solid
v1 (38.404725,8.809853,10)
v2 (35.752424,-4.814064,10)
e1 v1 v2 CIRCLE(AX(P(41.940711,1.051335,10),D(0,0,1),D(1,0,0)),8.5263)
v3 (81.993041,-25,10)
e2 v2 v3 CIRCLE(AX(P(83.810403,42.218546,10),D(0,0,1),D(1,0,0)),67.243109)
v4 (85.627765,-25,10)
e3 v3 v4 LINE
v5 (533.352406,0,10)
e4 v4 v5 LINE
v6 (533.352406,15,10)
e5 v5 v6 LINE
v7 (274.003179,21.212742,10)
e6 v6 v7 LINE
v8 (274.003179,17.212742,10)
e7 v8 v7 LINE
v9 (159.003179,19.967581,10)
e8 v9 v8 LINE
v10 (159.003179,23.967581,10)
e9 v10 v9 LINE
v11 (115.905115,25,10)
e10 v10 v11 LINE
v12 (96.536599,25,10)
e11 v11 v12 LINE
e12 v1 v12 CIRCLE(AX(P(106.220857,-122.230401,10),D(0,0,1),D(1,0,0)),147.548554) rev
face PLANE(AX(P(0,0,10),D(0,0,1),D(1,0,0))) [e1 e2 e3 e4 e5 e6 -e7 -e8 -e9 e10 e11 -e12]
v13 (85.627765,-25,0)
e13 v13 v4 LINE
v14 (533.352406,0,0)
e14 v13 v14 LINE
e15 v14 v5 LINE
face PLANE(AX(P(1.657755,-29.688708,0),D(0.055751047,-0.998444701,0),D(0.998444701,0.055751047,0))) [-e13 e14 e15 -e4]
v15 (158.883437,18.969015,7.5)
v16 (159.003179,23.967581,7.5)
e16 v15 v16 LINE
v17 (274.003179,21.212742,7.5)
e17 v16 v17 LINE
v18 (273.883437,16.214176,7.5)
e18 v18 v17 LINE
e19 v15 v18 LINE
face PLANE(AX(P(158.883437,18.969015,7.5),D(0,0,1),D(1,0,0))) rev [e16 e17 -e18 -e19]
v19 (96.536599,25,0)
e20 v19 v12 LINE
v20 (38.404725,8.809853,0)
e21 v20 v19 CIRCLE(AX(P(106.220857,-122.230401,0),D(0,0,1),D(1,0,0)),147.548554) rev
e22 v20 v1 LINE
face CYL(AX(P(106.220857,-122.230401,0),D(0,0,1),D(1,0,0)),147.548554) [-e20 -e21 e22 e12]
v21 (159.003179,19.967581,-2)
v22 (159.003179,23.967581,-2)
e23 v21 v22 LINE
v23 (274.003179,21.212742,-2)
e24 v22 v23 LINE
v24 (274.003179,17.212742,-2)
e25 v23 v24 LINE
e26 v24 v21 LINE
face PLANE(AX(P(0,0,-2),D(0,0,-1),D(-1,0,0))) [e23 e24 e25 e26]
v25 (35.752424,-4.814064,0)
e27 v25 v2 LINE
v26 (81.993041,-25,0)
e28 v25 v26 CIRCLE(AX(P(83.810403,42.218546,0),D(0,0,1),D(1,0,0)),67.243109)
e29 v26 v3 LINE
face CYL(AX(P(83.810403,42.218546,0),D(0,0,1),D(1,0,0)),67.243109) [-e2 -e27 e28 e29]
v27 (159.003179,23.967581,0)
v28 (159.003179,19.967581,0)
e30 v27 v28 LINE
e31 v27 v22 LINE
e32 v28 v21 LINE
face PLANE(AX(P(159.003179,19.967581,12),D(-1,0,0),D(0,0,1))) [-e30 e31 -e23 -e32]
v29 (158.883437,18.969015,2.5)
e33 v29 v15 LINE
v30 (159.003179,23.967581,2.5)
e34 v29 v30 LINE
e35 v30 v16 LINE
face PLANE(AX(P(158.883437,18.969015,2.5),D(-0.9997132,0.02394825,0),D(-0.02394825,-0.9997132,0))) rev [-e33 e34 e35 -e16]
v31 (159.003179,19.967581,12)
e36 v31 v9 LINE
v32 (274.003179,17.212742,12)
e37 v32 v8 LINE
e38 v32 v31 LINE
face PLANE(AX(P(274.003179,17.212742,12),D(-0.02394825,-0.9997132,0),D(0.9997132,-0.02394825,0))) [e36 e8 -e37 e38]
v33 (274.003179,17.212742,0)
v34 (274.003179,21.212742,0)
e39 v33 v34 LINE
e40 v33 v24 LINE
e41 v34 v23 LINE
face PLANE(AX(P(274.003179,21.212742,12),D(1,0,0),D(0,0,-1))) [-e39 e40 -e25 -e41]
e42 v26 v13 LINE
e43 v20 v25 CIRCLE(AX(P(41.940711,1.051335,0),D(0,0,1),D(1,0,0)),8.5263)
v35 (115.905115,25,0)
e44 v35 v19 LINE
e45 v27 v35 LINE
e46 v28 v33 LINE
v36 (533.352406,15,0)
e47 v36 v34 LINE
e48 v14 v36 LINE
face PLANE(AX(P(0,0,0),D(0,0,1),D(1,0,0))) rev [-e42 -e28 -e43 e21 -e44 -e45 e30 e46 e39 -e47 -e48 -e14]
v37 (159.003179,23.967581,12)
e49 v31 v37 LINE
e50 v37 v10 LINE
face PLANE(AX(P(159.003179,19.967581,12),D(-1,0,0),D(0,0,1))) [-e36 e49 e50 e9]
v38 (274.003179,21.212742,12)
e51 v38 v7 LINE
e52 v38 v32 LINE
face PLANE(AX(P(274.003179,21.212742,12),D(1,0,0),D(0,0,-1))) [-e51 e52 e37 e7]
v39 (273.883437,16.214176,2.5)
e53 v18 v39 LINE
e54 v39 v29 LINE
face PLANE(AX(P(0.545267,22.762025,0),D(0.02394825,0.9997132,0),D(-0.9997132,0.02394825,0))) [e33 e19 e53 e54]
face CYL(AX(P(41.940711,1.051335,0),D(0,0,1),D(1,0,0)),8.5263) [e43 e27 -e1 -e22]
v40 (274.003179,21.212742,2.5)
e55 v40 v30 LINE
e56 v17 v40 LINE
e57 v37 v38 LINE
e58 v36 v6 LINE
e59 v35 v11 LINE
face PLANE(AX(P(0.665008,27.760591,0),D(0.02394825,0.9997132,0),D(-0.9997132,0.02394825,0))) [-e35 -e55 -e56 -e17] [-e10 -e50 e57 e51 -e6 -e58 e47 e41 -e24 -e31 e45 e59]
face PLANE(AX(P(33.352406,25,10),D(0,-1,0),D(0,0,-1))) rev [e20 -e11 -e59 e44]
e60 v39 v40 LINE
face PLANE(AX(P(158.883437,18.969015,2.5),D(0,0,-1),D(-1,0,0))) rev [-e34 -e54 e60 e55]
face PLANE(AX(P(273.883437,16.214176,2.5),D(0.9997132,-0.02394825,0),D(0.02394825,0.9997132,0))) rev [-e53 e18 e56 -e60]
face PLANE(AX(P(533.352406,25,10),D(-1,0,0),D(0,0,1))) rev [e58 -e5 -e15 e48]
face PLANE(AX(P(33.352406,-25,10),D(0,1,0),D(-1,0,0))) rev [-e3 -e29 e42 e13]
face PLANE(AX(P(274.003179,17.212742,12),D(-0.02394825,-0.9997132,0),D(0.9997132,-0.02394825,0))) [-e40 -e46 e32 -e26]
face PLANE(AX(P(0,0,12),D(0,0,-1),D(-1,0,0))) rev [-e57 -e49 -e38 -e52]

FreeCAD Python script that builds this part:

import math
import FreeCAD as App
import Part
import Sketcher

V = App.Vector
Q = App.Units.Quantity


def add_polygon(sketch, points):
    """Adds a closed chain of lines whose ends are joined by coincident constraints."""
    first, n = sketch.GeometryCount, len(points)
    for a, b in zip(points, points[1:] + points[:1]):
        sketch.addGeometry(Part.LineSegment(App.Vector(*a, 0), App.Vector(*b, 0)), False)
    for i in range(n):
        sketch.addConstraint(Sketcher.Constraint("Coincident", first + i, 2, first + (i + 1) % n, 1))

doc = App.newDocument("Part")
body = doc.addObject("PartDesign::Body", "Body")

sketch1 = doc.addObject("Sketcher::SketchObject", "Sketch")
body.addObject(sketch1)
sketch1.AttachmentSupport = (doc.XY_Plane, [""])
sketch1.MapMode = "FlatFace"
add_polygon(sketch1, [(33.352406, 25), (33.352406, -25), (533.352406, -25), (533.352406, 25)])
sketch1.addConstraint(Sketcher.Constraint("Vertical", 0))
sketch1.addConstraint(Sketcher.Constraint("Horizontal", 1))
sketch1.addConstraint(Sketcher.Constraint("Vertical", 2))
sketch1.addConstraint(Sketcher.Constraint("Horizontal", 3))
sketch1.addConstraint(Sketcher.Constraint("DistanceX", 1, 1, 1, 2, Q("500 mm")))
sketch1.addConstraint(Sketcher.Constraint("DistanceY", 0, 2, 0, 1, Q("50 mm")))
sketch1.addConstraint(Sketcher.Constraint("DistanceY", 0, 2, -1, 1, Q("25 mm")))
sketch1.addConstraint(Sketcher.Constraint("DistanceX", -1, 1, 0, 2, Q("33.352406 mm")))
pad1 = doc.addObject("PartDesign::Pad", "Pad")
body.addObject(pad1)
pad1.Profile = sketch1
pad1.Length = 10

sketch2 = doc.addObject("Sketcher::SketchObject", "Sketch001")
body.addObject(sketch2)
sketch2.AttachmentSupport = (doc.XY_Plane, [""])
sketch2.MapMode = "FlatFace"
sketch2.AttachmentOffset = App.Placement(V(0, 0, 10), App.Rotation())
add_polygon(sketch2, [(533.352406, 0), (85.627765, -25), (533.352406, -25)])
sketch2.addGeometry(Part.LineSegment(V(33.352406, -25, 0), V(81.993041, -25, 0)), False)
sketch2.addGeometry(Part.ArcOfCircle(Part.Circle(V(83.810403, 42.218546, 0), V(0, 0, 1), 67.243109), math.radians(-135.617801), math.radians(-91.548707)), False)
sketch2.addGeometry(Part.ArcOfCircle(Part.Circle(V(41.940711, 1.051335, 0), V(0, 0, 1), 8.5263), math.radians(114.501381), math.radians(223.465553)), False)
sketch2.addGeometry(Part.ArcOfCircle(Part.Circle(V(106.220857, -122.230401, 0), V(0, 0, 1), 147.548554), math.radians(93.763278), math.radians(117.362531)), False)
sketch2.addGeometry(Part.LineSegment(V(96.536599, 25, 0), V(33.352406, 25, 0)), False)
sketch2.addGeometry(Part.LineSegment(V(33.352406, 25, 0), V(33.352406, -25, 0)), False)
add_polygon(sketch2, [(115.905115, 25), (533.352406, 15), (533.352406, 25)])
sketch2.addConstraint(Sketcher.Constraint("Coincident", 3, 2, 4, 2))
sketch2.addConstraint(Sketcher.Constraint("Coincident", 4, 1, 5, 2))
sketch2.addConstraint(Sketcher.Constraint("Coincident", 5, 1, 6, 2))
sketch2.addConstraint(Sketcher.Constraint("Coincident", 6, 1, 7, 1))
sketch2.addConstraint(Sketcher.Constraint("Coincident", 7, 2, 8, 1))
sketch2.addConstraint(Sketcher.Constraint("Coincident", 8, 2, 3, 1))
sketch2.addConstraint(Sketcher.Constraint("Horizontal", 1))
sketch2.addConstraint(Sketcher.Constraint("Vertical", 2))
sketch2.addConstraint(Sketcher.Constraint("Horizontal", 3))
sketch2.addConstraint(Sketcher.Constraint("Horizontal", 7))
sketch2.addConstraint(Sketcher.Constraint("Vertical", 8))
sketch2.addConstraint(Sketcher.Constraint("Vertical", 10))
sketch2.addConstraint(Sketcher.Constraint("Horizontal", 11))
sketch2.addConstraint(Sketcher.Constraint("Symmetric", 1, 2, 10, 2, -1))
sketch2.addConstraint(Sketcher.Constraint("PointOnObject", 2, 2, -1))
sketch2.addConstraint(Sketcher.Constraint("Horizontal", 1, 2, 3, 2))
sketch2.addConstraint(Sketcher.Constraint("Horizontal", 7, 2, 10, 2))
sketch2.addConstraint(Sketcher.Constraint("DistanceY", 2, 1, 2, 2, Q("25 mm")))
sketch2.addConstraint(Sketcher.Constraint("DistanceY", 10, 1, 10, 2, Q("10 mm")))
sketch2.addConstraint(Sketcher.Constraint("Radius", 5, Q("8.5263 mm")))
sketch2.addConstraint(Sketcher.Constraint("Radius", 4, Q("67.243109 mm")))
sketch2.addConstraint(Sketcher.Constraint("Radius", 6, Q("147.548554 mm")))
sketch2.addConstraint(Sketcher.Constraint("DistanceX", 1, 1, 1, 2, Q("447.72464 mm")))
sketch2.addConstraint(Sketcher.Constraint("DistanceX", 11, 2, 11, 1, Q("417.44729 mm")))
sketch2.addConstraint(Sketcher.Constraint("DistanceY", 6, 3, -1, 1, Q("122.230401 mm")))
sketch2.addConstraint(Sketcher.Constraint("DistanceX", -1, 1, 6, 1, Q("96.536599 mm")))
sketch2.addConstraint(Sketcher.Constraint("DistanceY", 4, 1, 5, 3, Q("5.865398 mm")))
sketch2.addConstraint(Sketcher.Constraint("DistanceX", 4, 1, 5, 1, Q("2.652301 mm")))
sketch2.addConstraint(Sketcher.Constraint("DistanceX", 3, 1, 3, 2, Q("48.640635 mm")))
sketch2.addConstraint(Sketcher.Constraint("DistanceX", 7, 2, 7, 1, Q("63.184193 mm")))
sketch2.addConstraint(Sketcher.Constraint("DistanceX", -1, 1, 5, 3, Q("41.940711 mm")))
sketch2.addConstraint(Sketcher.Constraint("DistanceX", 0, 2, 6, 3, Q("20.593092 mm")))
pocket1 = doc.addObject("PartDesign::Pocket", "Pocket")
body.addObject(pocket1)
pocket1.Profile = sketch2
pocket1.Type = "ThroughAll"

sketch3 = doc.addObject("Sketcher::SketchObject", "Sketch002")
body.addObject(sketch3)
sketch3.AttachmentSupport = (doc.XY_Plane, [""])
sketch3.MapMode = "FlatFace"
add_polygon(sketch3, [(159.003179, 23.967581), (274.003179, 21.212742), (274.003179, 17.212742), (159.003179, 19.967581)])
sketch3.addConstraint(Sketcher.Constraint("Vertical", 1))
sketch3.addConstraint(Sketcher.Constraint("Vertical", 3))
sketch3.addConstraint(Sketcher.Constraint("Parallel", 0, 2))
sketch3.addConstraint(Sketcher.Constraint("DistanceY", 1, 2, 1, 1, Q("4 mm")))
sketch3.addConstraint(Sketcher.Constraint("DistanceX", 2, 2, 0, 2, Q("115 mm")))
sketch3.addConstraint(Sketcher.Constraint("Distance", 0, Q("115.032992 mm")))
sketch3.addConstraint(Sketcher.Constraint("DistanceX", -1, 1, 0, 2, Q("274.003179 mm")))
sketch3.addConstraint(Sketcher.Constraint("DistanceY", -1, 1, 0, 2, Q("21.212742 mm")))
pad2 = doc.addObject("PartDesign::Pad", "Pad001")
body.addObject(pad2)
pad2.Profile = sketch3
pad2.Type = "TwoLengths"
pad2.Length = 2
pad2.Length2 = 12
pad2.Reversed = True

sketch4 = doc.addObject("Sketcher::SketchObject", "Sketch003")
body.addObject(sketch4)
sketch4.Placement = App.Placement(V(0.665008, 27.760591, 0), App.Rotation(V(0.9997132, -0.02394825, 0), V(0, 0, -1.000000001), V(0.02394825, 0.9997132, 0), "ZXY"))
add_polygon(sketch4, [(158.383595, -2.5), (158.383595, -7.5), (273.416587, -7.5), (273.416587, -2.5)])
sketch4.addConstraint(Sketcher.Constraint("Vertical", 0))
sketch4.addConstraint(Sketcher.Constraint("Horizontal", 1))
sketch4.addConstraint(Sketcher.Constraint("Vertical", 2))
sketch4.addConstraint(Sketcher.Constraint("Horizontal", 3))
sketch4.addConstraint(Sketcher.Constraint("DistanceY", 0, 2, 0, 1, Q("5 mm")))
sketch4.addConstraint(Sketcher.Constraint("DistanceY", 0, 2, -1, 1, Q("7.5 mm")))
sketch4.addConstraint(Sketcher.Constraint("DistanceX", 1, 1, 1, 2, Q("115.032992 mm")))
sketch4.addConstraint(Sketcher.Constraint("DistanceX", -1, 1, 0, 2, Q("158.383595 mm")))
pocket2 = doc.addObject("PartDesign::Pocket", "Pocket001")
body.addObject(pocket2)
pocket2.Profile = sketch4
pocket2.Length = 5

doc.recompute()
